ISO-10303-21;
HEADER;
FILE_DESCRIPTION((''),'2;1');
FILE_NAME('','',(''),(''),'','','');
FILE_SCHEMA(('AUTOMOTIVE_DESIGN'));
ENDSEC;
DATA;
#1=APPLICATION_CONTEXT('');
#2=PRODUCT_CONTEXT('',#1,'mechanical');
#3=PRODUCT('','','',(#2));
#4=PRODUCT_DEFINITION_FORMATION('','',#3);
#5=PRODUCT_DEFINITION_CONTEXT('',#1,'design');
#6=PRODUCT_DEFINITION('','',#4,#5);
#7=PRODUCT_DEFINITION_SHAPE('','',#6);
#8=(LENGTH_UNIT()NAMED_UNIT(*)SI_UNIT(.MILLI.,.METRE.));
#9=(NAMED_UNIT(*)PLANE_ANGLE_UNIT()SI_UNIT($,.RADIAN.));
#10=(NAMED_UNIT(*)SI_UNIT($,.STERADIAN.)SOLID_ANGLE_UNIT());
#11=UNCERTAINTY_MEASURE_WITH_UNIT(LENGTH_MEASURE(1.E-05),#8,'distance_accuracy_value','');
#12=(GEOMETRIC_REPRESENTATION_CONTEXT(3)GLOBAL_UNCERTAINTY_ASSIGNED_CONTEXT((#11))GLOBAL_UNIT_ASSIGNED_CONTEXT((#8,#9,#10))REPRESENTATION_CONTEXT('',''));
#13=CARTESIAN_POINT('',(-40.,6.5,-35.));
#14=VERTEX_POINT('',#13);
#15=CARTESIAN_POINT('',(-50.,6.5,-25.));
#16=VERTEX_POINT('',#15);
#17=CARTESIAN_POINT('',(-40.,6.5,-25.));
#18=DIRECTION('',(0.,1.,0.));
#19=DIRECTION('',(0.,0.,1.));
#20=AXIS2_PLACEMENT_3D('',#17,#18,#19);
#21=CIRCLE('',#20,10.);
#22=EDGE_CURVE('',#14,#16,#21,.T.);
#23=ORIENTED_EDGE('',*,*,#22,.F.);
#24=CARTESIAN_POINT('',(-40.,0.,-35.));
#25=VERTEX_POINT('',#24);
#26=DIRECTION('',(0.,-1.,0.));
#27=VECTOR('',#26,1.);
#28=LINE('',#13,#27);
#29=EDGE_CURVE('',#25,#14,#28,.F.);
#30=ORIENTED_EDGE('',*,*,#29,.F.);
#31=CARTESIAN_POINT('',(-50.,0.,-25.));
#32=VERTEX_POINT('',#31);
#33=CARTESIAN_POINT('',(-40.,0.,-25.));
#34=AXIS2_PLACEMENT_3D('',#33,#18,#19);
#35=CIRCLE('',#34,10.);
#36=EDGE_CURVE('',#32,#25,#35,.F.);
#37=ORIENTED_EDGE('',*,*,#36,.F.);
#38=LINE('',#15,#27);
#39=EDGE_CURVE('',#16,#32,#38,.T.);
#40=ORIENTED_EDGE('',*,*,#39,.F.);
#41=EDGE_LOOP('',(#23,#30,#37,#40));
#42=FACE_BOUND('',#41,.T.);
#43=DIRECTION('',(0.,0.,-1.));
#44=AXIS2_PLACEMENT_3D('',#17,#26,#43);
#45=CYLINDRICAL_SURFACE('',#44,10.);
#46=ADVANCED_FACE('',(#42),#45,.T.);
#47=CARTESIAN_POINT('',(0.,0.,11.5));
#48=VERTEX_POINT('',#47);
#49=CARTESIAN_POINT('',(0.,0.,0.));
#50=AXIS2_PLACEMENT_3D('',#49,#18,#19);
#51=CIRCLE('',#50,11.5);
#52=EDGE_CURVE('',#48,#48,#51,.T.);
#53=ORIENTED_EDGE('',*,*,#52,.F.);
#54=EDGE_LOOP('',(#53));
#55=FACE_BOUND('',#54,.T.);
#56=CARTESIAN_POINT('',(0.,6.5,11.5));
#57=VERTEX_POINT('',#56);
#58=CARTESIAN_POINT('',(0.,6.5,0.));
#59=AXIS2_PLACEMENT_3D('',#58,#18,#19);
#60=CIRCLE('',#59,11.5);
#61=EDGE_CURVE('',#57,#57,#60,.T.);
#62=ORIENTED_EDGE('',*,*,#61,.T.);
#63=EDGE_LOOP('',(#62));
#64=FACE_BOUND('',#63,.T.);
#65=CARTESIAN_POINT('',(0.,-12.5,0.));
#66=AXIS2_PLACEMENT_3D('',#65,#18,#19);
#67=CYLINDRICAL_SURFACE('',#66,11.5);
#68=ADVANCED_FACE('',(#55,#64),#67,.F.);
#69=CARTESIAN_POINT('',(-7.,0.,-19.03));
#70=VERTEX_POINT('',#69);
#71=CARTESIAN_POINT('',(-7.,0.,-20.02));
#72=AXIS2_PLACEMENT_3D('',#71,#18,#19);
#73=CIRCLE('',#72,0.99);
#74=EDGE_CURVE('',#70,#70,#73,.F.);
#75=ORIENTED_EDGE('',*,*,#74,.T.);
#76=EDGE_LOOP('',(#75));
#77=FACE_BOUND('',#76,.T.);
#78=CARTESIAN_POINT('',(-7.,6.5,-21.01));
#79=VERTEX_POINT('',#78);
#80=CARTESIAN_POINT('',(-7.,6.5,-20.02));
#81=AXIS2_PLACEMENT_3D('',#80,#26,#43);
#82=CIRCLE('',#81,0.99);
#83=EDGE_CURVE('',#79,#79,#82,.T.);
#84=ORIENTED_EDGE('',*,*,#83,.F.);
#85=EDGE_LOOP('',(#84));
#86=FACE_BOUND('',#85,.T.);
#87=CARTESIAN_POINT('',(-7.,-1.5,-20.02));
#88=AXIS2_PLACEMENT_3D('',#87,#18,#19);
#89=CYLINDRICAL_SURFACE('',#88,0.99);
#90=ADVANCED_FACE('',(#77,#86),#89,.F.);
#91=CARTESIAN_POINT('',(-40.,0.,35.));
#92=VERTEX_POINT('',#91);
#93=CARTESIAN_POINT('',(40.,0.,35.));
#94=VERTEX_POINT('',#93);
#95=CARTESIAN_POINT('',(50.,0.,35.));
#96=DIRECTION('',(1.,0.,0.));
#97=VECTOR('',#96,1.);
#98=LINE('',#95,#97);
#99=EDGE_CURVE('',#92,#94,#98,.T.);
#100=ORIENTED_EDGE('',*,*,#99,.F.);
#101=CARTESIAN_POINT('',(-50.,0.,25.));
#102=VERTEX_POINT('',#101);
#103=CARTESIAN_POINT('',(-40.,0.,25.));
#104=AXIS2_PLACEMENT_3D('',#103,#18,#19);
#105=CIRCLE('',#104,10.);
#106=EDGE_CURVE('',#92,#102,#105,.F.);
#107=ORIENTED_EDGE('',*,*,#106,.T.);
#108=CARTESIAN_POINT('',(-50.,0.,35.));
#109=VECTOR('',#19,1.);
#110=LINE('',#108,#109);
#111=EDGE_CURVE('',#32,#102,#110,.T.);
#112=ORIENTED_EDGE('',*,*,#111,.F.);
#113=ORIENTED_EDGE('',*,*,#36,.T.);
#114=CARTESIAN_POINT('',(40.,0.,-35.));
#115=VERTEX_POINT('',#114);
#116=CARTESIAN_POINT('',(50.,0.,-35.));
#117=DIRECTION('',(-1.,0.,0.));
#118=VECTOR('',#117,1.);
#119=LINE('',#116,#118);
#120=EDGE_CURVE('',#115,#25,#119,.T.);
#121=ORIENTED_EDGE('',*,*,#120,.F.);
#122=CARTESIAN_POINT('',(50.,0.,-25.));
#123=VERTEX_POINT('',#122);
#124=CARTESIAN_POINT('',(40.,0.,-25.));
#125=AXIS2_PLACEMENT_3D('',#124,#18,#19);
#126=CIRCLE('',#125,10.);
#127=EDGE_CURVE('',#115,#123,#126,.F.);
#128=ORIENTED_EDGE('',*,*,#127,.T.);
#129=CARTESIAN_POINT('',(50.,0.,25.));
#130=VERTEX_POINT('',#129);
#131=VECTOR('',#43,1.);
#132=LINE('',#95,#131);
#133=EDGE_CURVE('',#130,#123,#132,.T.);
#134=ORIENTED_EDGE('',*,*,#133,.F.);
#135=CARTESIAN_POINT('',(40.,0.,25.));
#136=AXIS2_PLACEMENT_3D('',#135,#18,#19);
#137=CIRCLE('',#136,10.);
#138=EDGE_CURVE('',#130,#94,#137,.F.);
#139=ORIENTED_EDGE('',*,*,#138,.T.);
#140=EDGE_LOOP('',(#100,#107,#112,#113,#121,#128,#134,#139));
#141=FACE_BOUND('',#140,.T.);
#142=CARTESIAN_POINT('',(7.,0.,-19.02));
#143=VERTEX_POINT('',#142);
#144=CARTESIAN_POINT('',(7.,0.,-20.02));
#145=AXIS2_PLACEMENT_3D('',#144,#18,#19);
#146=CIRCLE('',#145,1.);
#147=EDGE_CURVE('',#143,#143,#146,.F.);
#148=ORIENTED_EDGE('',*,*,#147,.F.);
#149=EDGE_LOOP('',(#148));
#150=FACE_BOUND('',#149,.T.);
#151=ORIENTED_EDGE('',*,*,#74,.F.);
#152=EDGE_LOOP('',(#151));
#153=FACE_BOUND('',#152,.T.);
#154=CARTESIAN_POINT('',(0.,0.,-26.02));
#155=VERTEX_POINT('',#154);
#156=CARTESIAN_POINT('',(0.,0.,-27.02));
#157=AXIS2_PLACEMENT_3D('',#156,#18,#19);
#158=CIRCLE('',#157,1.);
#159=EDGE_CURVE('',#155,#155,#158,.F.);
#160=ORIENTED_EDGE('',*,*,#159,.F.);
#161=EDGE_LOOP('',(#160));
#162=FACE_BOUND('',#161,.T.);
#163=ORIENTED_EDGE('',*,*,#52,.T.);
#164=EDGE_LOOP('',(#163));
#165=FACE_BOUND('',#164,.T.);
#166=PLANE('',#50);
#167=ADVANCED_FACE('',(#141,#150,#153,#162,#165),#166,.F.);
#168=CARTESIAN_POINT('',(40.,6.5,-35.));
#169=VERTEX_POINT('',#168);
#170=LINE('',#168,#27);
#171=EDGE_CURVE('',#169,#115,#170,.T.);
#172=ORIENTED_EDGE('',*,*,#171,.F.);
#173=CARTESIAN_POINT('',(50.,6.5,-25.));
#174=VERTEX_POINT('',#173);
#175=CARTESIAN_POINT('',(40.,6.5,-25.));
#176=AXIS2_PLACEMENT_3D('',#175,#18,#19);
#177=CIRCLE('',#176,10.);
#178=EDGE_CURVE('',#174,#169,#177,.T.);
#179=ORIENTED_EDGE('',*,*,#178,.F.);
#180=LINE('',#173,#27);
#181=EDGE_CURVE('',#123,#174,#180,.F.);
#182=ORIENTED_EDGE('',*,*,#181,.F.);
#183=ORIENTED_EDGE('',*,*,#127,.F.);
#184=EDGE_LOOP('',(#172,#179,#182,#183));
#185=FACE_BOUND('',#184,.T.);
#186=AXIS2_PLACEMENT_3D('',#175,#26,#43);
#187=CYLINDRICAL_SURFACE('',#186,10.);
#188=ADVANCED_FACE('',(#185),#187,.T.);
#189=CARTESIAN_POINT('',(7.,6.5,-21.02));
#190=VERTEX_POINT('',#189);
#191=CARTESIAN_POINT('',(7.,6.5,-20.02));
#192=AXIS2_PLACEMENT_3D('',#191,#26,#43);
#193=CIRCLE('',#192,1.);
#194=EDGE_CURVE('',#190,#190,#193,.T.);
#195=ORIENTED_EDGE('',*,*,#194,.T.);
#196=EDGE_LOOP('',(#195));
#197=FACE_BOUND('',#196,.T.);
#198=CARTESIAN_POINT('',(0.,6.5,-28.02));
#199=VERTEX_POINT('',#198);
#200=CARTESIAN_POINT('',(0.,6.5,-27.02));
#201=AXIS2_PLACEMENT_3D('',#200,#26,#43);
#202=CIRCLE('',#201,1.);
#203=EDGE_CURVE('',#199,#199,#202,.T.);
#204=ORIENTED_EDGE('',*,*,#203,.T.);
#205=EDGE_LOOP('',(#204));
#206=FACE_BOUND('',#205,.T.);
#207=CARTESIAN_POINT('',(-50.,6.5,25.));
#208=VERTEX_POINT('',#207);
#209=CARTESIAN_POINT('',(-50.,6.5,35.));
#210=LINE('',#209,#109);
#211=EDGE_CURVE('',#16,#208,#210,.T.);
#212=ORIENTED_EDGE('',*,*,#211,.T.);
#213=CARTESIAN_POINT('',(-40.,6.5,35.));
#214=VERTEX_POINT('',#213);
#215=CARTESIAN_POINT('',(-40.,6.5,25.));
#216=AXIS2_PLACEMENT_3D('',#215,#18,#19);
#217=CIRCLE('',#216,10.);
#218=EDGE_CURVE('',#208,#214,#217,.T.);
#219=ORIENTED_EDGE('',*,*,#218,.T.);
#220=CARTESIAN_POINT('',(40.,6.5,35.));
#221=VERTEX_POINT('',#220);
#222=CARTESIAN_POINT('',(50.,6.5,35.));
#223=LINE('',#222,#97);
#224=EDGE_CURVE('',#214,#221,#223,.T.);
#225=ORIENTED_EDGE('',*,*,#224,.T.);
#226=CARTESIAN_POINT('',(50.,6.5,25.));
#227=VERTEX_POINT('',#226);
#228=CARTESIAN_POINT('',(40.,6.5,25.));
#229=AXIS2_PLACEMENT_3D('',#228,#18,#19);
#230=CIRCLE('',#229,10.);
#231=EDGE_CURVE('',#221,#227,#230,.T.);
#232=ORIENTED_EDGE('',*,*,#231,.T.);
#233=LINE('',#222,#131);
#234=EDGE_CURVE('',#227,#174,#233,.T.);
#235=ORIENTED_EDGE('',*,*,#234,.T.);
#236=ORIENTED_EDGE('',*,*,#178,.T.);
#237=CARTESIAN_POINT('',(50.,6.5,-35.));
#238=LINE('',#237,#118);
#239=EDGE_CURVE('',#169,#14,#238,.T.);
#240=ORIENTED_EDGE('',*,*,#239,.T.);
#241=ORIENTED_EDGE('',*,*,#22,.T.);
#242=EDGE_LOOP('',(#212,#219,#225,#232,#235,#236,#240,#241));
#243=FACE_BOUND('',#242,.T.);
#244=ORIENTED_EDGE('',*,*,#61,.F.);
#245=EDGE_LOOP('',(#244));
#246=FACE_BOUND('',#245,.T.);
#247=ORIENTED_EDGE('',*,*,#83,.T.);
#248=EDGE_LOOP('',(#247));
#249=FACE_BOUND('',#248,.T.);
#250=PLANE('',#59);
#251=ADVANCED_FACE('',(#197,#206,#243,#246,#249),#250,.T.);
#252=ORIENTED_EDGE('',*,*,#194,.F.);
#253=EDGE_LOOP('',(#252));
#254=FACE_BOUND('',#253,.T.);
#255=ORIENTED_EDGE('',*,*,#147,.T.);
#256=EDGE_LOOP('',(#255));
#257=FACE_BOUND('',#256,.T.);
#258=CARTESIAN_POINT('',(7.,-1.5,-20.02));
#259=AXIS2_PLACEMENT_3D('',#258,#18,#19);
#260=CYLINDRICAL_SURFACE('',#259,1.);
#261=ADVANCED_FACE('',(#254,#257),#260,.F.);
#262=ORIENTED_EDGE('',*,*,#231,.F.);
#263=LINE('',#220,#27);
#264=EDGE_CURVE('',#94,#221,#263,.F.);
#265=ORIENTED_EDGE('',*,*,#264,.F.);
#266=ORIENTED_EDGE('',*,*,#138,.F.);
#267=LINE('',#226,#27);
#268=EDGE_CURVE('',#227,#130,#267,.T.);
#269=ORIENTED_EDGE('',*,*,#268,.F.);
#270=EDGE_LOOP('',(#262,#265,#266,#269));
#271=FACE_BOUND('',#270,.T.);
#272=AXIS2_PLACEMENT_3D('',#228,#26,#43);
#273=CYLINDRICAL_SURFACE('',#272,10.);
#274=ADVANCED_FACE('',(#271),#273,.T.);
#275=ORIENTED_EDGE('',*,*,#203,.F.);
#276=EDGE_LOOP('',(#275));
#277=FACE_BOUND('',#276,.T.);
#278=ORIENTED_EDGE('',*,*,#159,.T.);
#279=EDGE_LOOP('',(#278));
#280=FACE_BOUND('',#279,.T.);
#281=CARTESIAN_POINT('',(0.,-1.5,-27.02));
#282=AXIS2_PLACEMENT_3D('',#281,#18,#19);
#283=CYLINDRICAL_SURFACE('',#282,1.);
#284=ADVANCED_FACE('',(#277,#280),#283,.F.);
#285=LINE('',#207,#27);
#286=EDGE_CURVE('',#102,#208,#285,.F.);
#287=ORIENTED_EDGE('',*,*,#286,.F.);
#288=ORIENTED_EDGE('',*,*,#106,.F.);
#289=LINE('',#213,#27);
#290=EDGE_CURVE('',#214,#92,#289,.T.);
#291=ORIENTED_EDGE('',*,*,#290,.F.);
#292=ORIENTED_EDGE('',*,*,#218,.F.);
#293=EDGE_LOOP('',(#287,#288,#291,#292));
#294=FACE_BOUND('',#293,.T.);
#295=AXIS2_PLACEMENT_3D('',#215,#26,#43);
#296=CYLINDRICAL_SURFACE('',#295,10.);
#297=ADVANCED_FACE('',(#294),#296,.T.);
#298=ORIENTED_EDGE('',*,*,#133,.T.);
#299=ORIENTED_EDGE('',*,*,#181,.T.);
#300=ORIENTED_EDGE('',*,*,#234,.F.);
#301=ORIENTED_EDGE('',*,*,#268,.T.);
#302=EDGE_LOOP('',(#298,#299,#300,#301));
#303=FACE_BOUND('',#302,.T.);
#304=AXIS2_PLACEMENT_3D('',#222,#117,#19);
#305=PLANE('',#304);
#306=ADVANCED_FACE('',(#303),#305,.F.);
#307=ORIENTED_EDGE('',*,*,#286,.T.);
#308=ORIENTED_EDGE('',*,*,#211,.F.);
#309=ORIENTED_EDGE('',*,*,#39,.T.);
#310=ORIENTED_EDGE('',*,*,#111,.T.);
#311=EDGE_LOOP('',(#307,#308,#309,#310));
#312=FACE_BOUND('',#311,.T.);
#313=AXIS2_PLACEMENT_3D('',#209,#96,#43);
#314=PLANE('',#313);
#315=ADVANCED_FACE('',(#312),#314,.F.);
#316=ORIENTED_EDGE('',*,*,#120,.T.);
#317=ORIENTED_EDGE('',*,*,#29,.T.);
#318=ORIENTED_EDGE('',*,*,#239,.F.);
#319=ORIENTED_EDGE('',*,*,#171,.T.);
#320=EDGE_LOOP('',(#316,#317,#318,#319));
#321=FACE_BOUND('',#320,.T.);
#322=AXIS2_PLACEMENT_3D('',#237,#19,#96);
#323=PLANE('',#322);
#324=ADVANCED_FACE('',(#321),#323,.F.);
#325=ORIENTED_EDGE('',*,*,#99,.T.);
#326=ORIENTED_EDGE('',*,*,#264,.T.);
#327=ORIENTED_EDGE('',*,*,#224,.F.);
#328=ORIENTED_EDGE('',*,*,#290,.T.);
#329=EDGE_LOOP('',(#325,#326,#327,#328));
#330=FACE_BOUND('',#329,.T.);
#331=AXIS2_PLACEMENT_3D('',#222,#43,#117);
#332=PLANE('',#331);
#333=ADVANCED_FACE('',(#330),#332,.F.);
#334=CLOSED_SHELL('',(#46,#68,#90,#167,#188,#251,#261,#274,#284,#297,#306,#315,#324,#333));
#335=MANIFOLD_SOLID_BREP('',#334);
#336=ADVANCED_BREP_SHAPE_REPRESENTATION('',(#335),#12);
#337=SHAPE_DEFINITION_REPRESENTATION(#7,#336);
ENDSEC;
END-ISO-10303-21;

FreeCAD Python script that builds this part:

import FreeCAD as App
import Part
import Sketcher

V = App.Vector
Q = App.Units.Quantity


def edges_at(feature, points):
    """Names of the edges that pass closest to the given points."""
    edges = feature.Shape.Edges
    near = lambda p: min(range(len(edges)), key=lambda i: edges[i].distToShape(Part.Vertex(*p))[0])
    return sorted({f"Edge{near(p) + 1}" for p in points})

doc = App.newDocument("Part")
body = doc.addObject("PartDesign::Body", "Body")

# Sketch on XZ plane
sketch1 = body.newObject("Sketcher::SketchObject", "Sketch")
sketch1.AttachmentSupport = (doc.getObject("XZ_Plane"), [""])
sketch1.MapMode = "FlatFace"
sketch1.addGeometry(Part.LineSegment(V(-50, -35, 0), V(-50, 35, 0)), False)
sketch1.addGeometry(Part.LineSegment(V(-50, 35, 0), V(50, 35, 0)), False)
sketch1.addGeometry(Part.LineSegment(V(50, 35, 0), V(50, -35, 0)), False)
sketch1.addGeometry(Part.LineSegment(V(50, -35, 0), V(-50, -35, 0)), False)
sketch1.addConstraint(Sketcher.Constraint("Coincident", 0, 2, 1, 1))
sketch1.addConstraint(Sketcher.Constraint("Coincident", 1, 2, 2, 1))
sketch1.addConstraint(Sketcher.Constraint("Coincident", 2, 2, 3, 1))
sketch1.addConstraint(Sketcher.Constraint("Coincident", 3, 2, 0, 1))
sketch1.addConstraint(Sketcher.Constraint("Vertical", 0))
sketch1.addConstraint(Sketcher.Constraint("Horizontal", 1))
sketch1.addConstraint(Sketcher.Constraint("Vertical", 2))
sketch1.addConstraint(Sketcher.Constraint("Horizontal", 3))
sketch1.addConstraint(Sketcher.Constraint("Symmetric", 0, 2, 2, 2, -1, 1))
sketch1.addConstraint(Sketcher.Constraint("DistanceX", 1, 1, 1, 2, Q("100 mm")))
sketch1.addConstraint(Sketcher.Constraint("DistanceY", 0, 1, 0, 2, Q("70 mm")))
pad1 = body.newObject("PartDesign::Pad", "Pad")
pad1.Profile = sketch1
pad1.Length = 6.5
pad1.Reversed = True

# Sketch on XZ plane
sketch2 = body.newObject("Sketcher::SketchObject", "Sketch001")
sketch2.AttachmentSupport = (doc.getObject("XZ_Plane"), [""])
sketch2.MapMode = "FlatFace"
sketch2.AttachmentOffset = App.Placement(V(0, 0, -6.5), App.Rotation())
sketch2.addGeometry(Part.Circle(V(0, 0, 0), V(0, 0, 1), 12), False)
sketch2.addConstraint(Sketcher.Constraint("Coincident", 0, 3, -1, 1))
sketch2.addConstraint(Sketcher.Constraint("Diameter", 0, Q("23 mm")))
pocket1 = body.newObject("PartDesign::Pocket", "Pocket")
pocket1.Profile = sketch2
pocket1.Length = 19
pocket1.Reversed = True

# Sketch on XZ plane
sketch3 = body.newObject("Sketcher::SketchObject", "Sketch002")
sketch3.AttachmentSupport = (doc.getObject("XZ_Plane"), [""])
sketch3.MapMode = "FlatFace"
sketch3.AttachmentOffset = App.Placement(V(0, 0, -6.5), App.Rotation())
sketch3.addGeometry(Part.Circle(V(-7, -20, 0), V(0, 0, 1), 1), False)
sketch3.addGeometry(Part.Circle(V(0, -27, 0), V(0, 0, 1), 1), False)
sketch3.addGeometry(Part.Circle(V(7, -20, 0), V(0, 0, 1), 1), False)
sketch3.addConstraint(Sketcher.Constraint("Equal", 1, 2))
sketch3.addConstraint(Sketcher.Constraint("Symmetric", 0, 3, 2, 3, -2))
sketch3.addConstraint(Sketcher.Constraint("PointOnObject", 1, 3, -2))
sketch3.addConstraint(Sketcher.Constraint("Diameter", 1, Q("2 mm")))
sketch3.addConstraint(Sketcher.Constraint("Diameter", 0, Q("1.98 mm")))
sketch3.addConstraint(Sketcher.Constraint("DistanceX", 0, 3, -1, 1, Q("7 mm")))
sketch3.addConstraint(Sketcher.Constraint("DistanceY", 1, 3, 0, 3, Q("7 mm")))
sketch3.addConstraint(Sketcher.Constraint("DistanceY", 0, 3, -1, 1, Q("20.02 mm")))
pocket2 = body.newObject("PartDesign::Pocket", "Pocket001")
pocket2.Profile = sketch3
pocket2.Length = 8
pocket2.Reversed = True
doc.recompute()

fillet = body.newObject("PartDesign::Fillet", "Fillet")
fillet.Base = (pocket2, edges_at(pocket2, [
    (-50, 3.25, -35),
    (50, 3.25, -35),
    (50, 3.25, 35),
    (-50, 3.25, 35),
]))
fillet.Radius = 10

doc.recompute()
